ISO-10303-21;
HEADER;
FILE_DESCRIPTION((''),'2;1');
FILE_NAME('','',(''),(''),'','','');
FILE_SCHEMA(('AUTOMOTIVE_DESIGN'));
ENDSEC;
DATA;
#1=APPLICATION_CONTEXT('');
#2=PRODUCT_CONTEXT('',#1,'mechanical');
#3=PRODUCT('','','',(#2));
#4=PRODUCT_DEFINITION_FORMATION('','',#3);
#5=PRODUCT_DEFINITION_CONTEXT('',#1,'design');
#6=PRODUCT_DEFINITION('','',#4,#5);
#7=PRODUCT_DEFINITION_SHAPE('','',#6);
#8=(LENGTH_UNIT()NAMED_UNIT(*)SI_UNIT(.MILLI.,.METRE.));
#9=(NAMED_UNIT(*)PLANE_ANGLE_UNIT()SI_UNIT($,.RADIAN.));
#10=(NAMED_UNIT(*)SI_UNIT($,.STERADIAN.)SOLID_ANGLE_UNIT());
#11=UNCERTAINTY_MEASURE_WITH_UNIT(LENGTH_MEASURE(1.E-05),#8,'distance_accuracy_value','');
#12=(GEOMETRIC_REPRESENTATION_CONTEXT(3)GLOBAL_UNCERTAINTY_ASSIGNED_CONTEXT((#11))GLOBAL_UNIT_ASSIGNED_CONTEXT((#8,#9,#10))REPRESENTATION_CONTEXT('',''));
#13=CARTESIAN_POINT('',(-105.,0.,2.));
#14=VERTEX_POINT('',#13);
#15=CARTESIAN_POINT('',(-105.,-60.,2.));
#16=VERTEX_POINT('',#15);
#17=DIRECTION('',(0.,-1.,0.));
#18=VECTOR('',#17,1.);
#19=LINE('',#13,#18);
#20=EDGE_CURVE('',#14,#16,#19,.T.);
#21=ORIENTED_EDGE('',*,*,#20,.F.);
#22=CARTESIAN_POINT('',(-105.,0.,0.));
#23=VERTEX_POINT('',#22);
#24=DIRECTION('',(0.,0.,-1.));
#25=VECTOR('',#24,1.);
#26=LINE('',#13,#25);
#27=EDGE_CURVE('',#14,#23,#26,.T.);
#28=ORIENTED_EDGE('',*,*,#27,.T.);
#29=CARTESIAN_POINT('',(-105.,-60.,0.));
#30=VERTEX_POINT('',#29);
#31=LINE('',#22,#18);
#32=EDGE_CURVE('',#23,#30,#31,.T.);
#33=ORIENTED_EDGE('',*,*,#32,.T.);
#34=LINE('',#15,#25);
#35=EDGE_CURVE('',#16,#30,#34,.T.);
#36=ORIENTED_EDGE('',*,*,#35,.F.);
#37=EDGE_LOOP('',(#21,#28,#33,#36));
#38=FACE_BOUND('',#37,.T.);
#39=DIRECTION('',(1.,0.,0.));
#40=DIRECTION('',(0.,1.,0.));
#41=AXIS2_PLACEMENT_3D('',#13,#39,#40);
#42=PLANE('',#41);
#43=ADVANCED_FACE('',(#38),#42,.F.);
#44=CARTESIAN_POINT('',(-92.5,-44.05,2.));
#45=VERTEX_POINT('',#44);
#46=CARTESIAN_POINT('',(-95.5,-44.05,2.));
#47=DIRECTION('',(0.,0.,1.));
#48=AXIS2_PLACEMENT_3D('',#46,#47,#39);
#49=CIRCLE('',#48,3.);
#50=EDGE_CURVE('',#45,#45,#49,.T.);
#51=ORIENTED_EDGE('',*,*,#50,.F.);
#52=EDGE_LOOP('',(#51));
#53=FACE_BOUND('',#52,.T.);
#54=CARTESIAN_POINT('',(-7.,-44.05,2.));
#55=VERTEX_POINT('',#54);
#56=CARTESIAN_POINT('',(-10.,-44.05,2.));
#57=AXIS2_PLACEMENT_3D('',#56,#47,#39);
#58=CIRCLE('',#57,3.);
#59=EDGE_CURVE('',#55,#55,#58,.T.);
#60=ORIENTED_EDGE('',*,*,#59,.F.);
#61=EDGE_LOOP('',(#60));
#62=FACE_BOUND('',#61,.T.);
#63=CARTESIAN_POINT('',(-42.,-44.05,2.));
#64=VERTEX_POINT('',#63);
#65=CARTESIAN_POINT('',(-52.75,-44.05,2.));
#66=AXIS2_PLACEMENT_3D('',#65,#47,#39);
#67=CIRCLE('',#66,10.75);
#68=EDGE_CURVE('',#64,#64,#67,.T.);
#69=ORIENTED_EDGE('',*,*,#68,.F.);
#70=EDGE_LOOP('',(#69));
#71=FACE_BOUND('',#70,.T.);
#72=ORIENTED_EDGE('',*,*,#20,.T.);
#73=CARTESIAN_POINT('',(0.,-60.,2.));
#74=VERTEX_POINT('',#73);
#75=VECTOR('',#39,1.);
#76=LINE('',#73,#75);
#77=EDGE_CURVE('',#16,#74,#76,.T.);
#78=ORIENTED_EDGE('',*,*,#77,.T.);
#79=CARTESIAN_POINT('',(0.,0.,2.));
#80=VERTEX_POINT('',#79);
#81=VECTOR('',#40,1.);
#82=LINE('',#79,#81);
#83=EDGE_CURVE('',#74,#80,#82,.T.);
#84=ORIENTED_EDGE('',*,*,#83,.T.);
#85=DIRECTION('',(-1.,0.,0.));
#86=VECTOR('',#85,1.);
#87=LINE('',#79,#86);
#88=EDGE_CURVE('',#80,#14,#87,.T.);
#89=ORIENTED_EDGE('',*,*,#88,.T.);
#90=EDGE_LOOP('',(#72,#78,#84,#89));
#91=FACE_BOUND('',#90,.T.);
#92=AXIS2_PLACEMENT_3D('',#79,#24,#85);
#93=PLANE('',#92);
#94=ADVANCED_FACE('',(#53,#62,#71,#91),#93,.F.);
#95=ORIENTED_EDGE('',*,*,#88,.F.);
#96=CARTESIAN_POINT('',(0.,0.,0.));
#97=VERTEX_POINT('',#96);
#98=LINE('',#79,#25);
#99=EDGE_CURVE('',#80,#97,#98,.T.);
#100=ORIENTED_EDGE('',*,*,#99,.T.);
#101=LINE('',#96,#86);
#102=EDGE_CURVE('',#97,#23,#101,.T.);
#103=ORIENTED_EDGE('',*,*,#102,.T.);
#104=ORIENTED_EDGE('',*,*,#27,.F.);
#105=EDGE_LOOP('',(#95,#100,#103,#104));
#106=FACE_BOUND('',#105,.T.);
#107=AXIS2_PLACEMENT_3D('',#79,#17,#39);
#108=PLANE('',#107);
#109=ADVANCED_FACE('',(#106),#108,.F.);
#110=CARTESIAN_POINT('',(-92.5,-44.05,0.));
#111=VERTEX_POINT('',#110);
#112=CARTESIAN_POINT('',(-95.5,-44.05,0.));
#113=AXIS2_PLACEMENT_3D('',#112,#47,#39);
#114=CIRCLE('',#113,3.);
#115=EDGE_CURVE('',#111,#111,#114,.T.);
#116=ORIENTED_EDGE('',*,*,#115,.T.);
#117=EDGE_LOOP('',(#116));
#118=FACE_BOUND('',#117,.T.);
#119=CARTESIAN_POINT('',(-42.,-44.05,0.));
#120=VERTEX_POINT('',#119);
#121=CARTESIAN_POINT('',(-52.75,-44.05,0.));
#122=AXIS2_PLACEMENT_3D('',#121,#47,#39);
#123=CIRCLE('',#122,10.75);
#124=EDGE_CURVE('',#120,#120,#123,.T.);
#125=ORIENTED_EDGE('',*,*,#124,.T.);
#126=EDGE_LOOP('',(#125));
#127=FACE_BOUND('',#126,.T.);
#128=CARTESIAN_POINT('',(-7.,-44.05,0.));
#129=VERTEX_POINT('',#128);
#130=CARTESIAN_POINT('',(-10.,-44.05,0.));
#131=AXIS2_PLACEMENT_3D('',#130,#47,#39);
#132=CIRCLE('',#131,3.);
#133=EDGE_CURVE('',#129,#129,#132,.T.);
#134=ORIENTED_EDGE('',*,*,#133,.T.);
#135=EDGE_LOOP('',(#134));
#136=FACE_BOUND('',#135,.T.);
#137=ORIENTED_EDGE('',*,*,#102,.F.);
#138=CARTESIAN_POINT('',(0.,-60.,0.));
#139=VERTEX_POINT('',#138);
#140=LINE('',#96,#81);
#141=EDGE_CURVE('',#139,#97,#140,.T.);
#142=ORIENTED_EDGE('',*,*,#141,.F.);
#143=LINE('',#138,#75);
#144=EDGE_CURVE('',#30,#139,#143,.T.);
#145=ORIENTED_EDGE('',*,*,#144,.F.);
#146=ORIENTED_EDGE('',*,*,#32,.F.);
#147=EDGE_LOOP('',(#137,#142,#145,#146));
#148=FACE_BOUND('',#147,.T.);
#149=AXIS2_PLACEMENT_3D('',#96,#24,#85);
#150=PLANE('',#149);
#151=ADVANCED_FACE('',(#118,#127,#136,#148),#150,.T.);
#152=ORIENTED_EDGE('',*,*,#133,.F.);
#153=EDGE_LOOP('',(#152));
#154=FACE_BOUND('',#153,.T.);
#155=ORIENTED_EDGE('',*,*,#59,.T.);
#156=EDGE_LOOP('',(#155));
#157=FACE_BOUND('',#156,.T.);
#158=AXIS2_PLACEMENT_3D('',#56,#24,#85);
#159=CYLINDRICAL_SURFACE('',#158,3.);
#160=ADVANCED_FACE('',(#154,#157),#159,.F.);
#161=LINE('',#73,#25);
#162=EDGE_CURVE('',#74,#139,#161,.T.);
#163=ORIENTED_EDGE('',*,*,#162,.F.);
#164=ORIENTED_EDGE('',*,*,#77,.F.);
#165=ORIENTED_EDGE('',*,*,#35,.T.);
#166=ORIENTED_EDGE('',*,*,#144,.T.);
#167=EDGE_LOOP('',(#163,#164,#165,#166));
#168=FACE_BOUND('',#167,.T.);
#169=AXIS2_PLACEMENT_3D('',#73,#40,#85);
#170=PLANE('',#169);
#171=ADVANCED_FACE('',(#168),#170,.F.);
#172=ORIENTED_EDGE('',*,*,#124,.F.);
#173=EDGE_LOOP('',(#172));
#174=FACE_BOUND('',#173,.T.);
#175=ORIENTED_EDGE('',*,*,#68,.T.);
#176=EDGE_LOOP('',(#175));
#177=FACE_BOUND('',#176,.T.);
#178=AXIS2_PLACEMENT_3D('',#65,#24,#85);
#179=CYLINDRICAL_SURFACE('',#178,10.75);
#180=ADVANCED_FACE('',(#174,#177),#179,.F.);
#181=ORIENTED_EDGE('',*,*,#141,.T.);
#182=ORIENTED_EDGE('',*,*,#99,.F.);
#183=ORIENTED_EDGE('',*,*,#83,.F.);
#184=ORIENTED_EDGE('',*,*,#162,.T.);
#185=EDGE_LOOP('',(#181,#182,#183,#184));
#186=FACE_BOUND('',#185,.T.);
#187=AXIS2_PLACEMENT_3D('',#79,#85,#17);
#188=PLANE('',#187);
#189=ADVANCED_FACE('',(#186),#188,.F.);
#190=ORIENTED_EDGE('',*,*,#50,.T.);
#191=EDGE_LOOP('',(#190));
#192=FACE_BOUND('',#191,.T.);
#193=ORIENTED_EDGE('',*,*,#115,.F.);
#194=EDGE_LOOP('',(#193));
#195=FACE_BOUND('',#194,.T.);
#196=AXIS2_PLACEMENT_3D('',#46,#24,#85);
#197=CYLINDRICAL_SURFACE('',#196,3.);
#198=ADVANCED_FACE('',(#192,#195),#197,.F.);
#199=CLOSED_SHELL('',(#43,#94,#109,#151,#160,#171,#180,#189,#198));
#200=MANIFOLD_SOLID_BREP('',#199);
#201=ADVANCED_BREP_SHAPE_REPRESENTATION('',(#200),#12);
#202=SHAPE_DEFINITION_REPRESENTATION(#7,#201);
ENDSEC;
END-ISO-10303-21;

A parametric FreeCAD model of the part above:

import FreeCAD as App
import Part
import Sketcher

V = App.Vector
Q = App.Units.Quantity

doc = App.newDocument("Part")
body = doc.addObject("PartDesign::Body", "Body")

# Sketch on XY plane
sketch1 = doc.addObject("Sketcher::SketchObject", "Sketch")
body.addObject(sketch1)
sketch1.AttachmentSupport = (doc.XY_Plane, [""])
sketch1.MapMode = "FlatFace"
sketch1.addGeometry([
    Part.LineSegment(V(-105, 0, 0), V(-105, -60, 0)),  # 0
    Part.LineSegment(V(-105, -60, 0), V(0, -60, 0)),  # 1
    Part.LineSegment(V(0, -60, 0), V(0, 0, 0)),  # 2
    Part.LineSegment(V(0, 0, 0), V(-105, 0, 0)),  # 3
    Part.Circle(V(-95.5, -44.05, 0), V(0, 0, 1), 3),  # 4
    Part.Circle(V(-52.75, -44.05, 0), V(0, 0, 1), 10.75),  # 5
    Part.Circle(V(-10, -44.05, 0), V(0, 0, 1), 3),  # 6
], False)
sketch1.addConstraint([
    Sketcher.Constraint("Coincident", 0, 2, 1, 1),
    Sketcher.Constraint("Coincident", 1, 2, 2, 1),
    Sketcher.Constraint("Coincident", 2, 2, 3, 1),
    Sketcher.Constraint("Coincident", 3, 2, 0, 1),
    Sketcher.Constraint("Vertical", 0),
    Sketcher.Constraint("Horizontal", 1),
    Sketcher.Constraint("Vertical", 2),
    Sketcher.Constraint("Horizontal", 3),
    Sketcher.Constraint("Coincident", 2, 2, -1, 1),
    Sketcher.Constraint("Equal", 4, 6),
    Sketcher.Constraint("Horizontal", 4, 3, 5, 3),
    Sketcher.Constraint("Horizontal", 5, 3, 6, 3),
    Sketcher.Constraint("Diameter", 4, Q("6 mm")),
    Sketcher.Constraint("Diameter", 5, Q("21.5 mm")),
    Sketcher.Constraint("DistanceX", 1, 1, 1, 2, Q("105 mm")),
    Sketcher.Constraint("DistanceY", 0, 2, 0, 1, Q("60 mm")),
    Sketcher.Constraint("DistanceX", 6, 3, -1, 1, Q("10 mm")),
    Sketcher.Constraint("DistanceX", 4, 3, -1, 1, Q("95.5 mm")),
    Sketcher.Constraint("DistanceY", 4, 3, -1, 1, Q("44.05 mm")),
    Sketcher.Constraint("DistanceX", 5, 3, -1, 1, Q("52.75 mm")),
])
pad1 = doc.addObject("PartDesign::Pad", "Pad")
body.addObject(pad1)
pad1.Profile = sketch1
pad1.Length = 2

doc.recompute()
